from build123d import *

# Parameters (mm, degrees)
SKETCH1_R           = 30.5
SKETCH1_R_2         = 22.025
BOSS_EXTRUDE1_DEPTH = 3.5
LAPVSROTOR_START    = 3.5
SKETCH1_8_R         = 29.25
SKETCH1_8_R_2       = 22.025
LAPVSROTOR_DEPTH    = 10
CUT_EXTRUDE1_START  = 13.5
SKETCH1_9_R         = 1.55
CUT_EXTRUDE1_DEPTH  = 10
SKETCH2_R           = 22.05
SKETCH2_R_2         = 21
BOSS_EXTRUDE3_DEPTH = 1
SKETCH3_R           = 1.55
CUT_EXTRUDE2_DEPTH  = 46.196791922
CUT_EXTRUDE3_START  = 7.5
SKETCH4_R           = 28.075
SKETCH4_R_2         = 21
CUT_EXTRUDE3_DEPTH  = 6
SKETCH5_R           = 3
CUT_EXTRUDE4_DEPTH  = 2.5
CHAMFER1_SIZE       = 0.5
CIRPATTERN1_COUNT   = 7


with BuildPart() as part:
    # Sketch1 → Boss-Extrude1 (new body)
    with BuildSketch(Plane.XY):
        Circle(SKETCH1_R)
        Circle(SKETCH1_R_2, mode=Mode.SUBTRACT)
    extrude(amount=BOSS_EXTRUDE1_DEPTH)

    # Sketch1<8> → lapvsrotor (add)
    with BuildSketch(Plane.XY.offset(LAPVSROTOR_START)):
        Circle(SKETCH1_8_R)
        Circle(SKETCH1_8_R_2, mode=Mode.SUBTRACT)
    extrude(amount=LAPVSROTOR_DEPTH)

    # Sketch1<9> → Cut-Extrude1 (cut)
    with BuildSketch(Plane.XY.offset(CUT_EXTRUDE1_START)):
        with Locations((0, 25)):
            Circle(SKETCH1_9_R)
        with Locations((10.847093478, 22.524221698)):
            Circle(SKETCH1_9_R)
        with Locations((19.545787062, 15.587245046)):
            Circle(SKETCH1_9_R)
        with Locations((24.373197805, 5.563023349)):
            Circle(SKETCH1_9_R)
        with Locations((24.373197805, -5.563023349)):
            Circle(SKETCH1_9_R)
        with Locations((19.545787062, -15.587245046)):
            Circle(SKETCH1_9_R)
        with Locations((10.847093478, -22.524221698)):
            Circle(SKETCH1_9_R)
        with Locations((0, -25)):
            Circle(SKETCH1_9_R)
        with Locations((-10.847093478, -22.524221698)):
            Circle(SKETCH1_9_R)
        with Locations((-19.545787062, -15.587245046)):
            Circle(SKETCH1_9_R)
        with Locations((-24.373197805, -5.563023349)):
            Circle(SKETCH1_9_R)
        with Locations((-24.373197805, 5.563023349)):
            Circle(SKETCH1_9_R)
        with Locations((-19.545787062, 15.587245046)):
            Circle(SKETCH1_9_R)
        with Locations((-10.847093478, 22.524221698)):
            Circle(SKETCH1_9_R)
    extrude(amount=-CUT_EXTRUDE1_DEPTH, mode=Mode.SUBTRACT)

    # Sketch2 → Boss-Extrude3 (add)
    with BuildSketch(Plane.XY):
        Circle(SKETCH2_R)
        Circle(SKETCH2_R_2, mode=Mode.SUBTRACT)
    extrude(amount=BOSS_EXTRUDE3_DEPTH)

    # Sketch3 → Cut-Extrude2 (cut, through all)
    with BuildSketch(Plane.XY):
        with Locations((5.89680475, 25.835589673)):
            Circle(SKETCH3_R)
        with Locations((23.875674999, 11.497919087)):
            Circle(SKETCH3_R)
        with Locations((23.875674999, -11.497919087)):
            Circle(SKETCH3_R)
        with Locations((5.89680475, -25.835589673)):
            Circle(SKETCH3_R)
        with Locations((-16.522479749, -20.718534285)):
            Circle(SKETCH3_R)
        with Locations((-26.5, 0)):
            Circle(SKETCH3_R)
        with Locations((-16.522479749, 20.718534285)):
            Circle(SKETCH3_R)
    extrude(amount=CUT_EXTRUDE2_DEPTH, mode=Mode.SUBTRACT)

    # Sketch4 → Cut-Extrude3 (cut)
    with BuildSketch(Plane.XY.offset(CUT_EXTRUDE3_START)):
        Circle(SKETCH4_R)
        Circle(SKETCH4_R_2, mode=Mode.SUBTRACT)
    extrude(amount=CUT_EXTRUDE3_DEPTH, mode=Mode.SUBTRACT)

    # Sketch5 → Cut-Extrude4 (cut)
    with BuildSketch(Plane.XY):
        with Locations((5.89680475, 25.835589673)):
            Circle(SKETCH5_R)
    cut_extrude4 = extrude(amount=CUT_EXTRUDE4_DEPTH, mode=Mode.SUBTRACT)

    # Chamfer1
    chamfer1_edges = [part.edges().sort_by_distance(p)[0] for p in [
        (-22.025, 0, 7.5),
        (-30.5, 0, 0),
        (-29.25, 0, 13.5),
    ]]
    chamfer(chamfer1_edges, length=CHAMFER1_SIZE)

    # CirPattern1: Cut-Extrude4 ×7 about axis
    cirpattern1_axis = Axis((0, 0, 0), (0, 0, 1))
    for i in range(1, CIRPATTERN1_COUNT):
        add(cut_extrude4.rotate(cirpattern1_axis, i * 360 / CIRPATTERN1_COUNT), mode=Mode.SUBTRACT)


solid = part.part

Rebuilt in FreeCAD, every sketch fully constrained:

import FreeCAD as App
import Part
import Sketcher


def edges_at(feature, points):
    """Names of the edges that pass closest to the given points."""
    edges = feature.Shape.Edges
    near = lambda p: min(range(len(edges)), key=lambda i: edges[i].distToShape(Part.Vertex(*p))[0])
    return sorted({f"Edge{near(p) + 1}" for p in points})

doc = App.newDocument("Part")
body = doc.addObject("PartDesign::Body", "Body")

# Sketch on XY plane
sketch1 = doc.addObject("Sketcher::SketchObject", "Sketch")
body.addObject(sketch1)
sketch1.AttachmentSupport = (doc.XY_Plane, [""])
sketch1.MapMode = "FlatFace"
sketch1.addGeometry([
    Part.Circle(App.Vector(0, 0, 0), App.Vector(0, 0, 1), 30),
    Part.Circle(App.Vector(0, 0, 0), App.Vector(0, 0, 1), 22),
], False)
sketch1.addConstraint([
    Sketcher.Constraint("Coincident", 0, 3, -1, 1),
    Sketcher.Constraint("Coincident", 1, 3, -1, 1),
    Sketcher.Constraint("Diameter", 0, 61.0),
    Sketcher.Constraint("Diameter", 1, 44.05),
])
pad1 = doc.addObject("PartDesign::Pad", "Pad")
body.addObject(pad1)
pad1.Profile = sketch1
pad1.Length = 3.5

# Sketch on XY plane
sketch2 = doc.addObject("Sketcher::SketchObject", "Sketch001")
body.addObject(sketch2)
sketch2.AttachmentSupport = (doc.XY_Plane, [""])
sketch2.MapMode = "FlatFace"
sketch2.AttachmentOffset = App.Placement(App.Vector(0, 0, 3.5), App.Rotation())
sketch2.addGeometry([
    Part.Circle(App.Vector(0, 0, 0), App.Vector(0, 0, 1), 29),
    Part.Circle(App.Vector(0, 0, 0), App.Vector(0, 0, 1), 22),
], False)
sketch2.addConstraint([
    Sketcher.Constraint("Coincident", 0, 3, -1, 1),
    Sketcher.Constraint("Coincident", 1, 3, -1, 1),
    Sketcher.Constraint("Diameter", 0, 58.5),
    Sketcher.Constraint("Diameter", 1, 44.05),
])
pad2 = doc.addObject("PartDesign::Pad", "Pad001")
body.addObject(pad2)
pad2.Profile = sketch2
pad2.Length = 10

# Sketch on XY plane
sketch3 = doc.addObject("Sketcher::SketchObject", "Sketch002")
body.addObject(sketch3)
sketch3.AttachmentSupport = (doc.XY_Plane, [""])
sketch3.MapMode = "FlatFace"
sketch3.AttachmentOffset = App.Placement(App.Vector(0, 0, 13.5), App.Rotation())
sketch3.addGeometry([
    Part.Circle(App.Vector(0, 25, 0), App.Vector(0, 0, 1), 1.6),  # 0
    Part.Circle(App.Vector(10.8, 22.5, 0), App.Vector(0, 0, 1), 1.6),  # 1
    Part.Circle(App.Vector(19.5, 15.6, 0), App.Vector(0, 0, 1), 1.6),  # 2
    Part.Circle(App.Vector(24.4, 5.6, 0), App.Vector(0, 0, 1), 1.6),  # 3
    Part.Circle(App.Vector(24.4, -5.6, 0), App.Vector(0, 0, 1), 1.6),  # 4
    Part.Circle(App.Vector(19.5, -15.6, 0), App.Vector(0, 0, 1), 1.6),  # 5
    Part.Circle(App.Vector(10.8, -22.5, 0), App.Vector(0, 0, 1), 1.6),  # 6
    Part.Circle(App.Vector(0, -25, 0), App.Vector(0, 0, 1), 1.6),  # 7
    Part.Circle(App.Vector(-10.8, -22.5, 0), App.Vector(0, 0, 1), 1.6),  # 8
    Part.Circle(App.Vector(-19.5, -15.6, 0), App.Vector(0, 0, 1), 1.6),  # 9
    Part.Circle(App.Vector(-24.4, -5.6, 0), App.Vector(0, 0, 1), 1.6),  # 10
    Part.Circle(App.Vector(-24.4, 5.6, 0), App.Vector(0, 0, 1), 1.6),  # 11
    Part.Circle(App.Vector(-19.5, 15.6, 0), App.Vector(0, 0, 1), 1.6),  # 12
    Part.Circle(App.Vector(-10.8, 22.5, 0), App.Vector(0, 0, 1), 1.6),  # 13
], False)
sketch3.addConstraint([
    Sketcher.Constraint("Equal", 0, 1),
    Sketcher.Constraint("Equal", 1, 2),
    Sketcher.Constraint("Equal", 2, 3),
    Sketcher.Constraint("Equal", 3, 4),
    Sketcher.Constraint("Equal", 4, 5),
    Sketcher.Constraint("Equal", 5, 6),
    Sketcher.Constraint("Equal", 6, 7),
    Sketcher.Constraint("Equal", 7, 8),
    Sketcher.Constraint("Equal", 8, 9),
    Sketcher.Constraint("Equal", 9, 10),
    Sketcher.Constraint("Equal", 10, 11),
    Sketcher.Constraint("Equal", 11, 12),
    Sketcher.Constraint("Equal", 12, 13),
    Sketcher.Constraint("Symmetric", 0, 3, 7, 3, -1, 1),
    Sketcher.Constraint("Symmetric", 1, 3, 8, 3, -1, 1),
    Sketcher.Constraint("Symmetric", 2, 3, 9, 3, -1, 1),
    Sketcher.Constraint("Symmetric", 3, 3, 10, 3, -1, 1),
    Sketcher.Constraint("Symmetric", 4, 3, 11, 3, -1, 1),
    Sketcher.Constraint("Symmetric", 5, 3, 12, 3, -1, 1),
    Sketcher.Constraint("Symmetric", 6, 3, 13, 3, -1, 1),
    Sketcher.Constraint("Symmetric", 6, 3, 8, 3, -2),
    Sketcher.Constraint("Symmetric", 5, 3, 9, 3, -2),
    Sketcher.Constraint("Symmetric", 4, 3, 10, 3, -2),
    Sketcher.Constraint("PointOnObject", 0, 3, -2),
    Sketcher.Constraint("Diameter", 0, 3.1),
    Sketcher.Constraint("DistanceY", -1, 1, 0, 3, 25.0),
    Sketcher.Constraint("DistanceY", 3, 3, 1, 3, 16.961198),
    Sketcher.Constraint("DistanceY", -1, 1, 1, 3, 22.524222),
    Sketcher.Constraint("DistanceX", 2, 3, 3, 3, 4.827411),
    Sketcher.Constraint("DistanceY", 3, 3, 2, 3, 10.024222),
    Sketcher.Constraint("DistanceX", 8, 3, 5, 3, 30.392881),
    Sketcher.Constraint("DistanceX", -1, 1, 1, 3, 10.847093),
])
pocket1 = doc.addObject("PartDesign::Pocket", "Pocket")
body.addObject(pocket1)
pocket1.Profile = sketch3
pocket1.Length = 10

# Sketch on XY plane
sketch4 = doc.addObject("Sketcher::SketchObject", "Sketch003")
body.addObject(sketch4)
sketch4.AttachmentSupport = (doc.XY_Plane, [""])
sketch4.MapMode = "FlatFace"
sketch4.addGeometry([
    Part.Circle(App.Vector(0, 0, 0), App.Vector(0, 0, 1), 22),
    Part.Circle(App.Vector(0, 0, 0), App.Vector(0, 0, 1), 21),
], False)
sketch4.addConstraint([
    Sketcher.Constraint("Coincident", 0, 3, -1, 1),
    Sketcher.Constraint("Coincident", 1, 3, -1, 1),
    Sketcher.Constraint("Diameter", 1, 42.0),
    Sketcher.Constraint("Diameter", 0, 44.1),
])
pad3 = doc.addObject("PartDesign::Pad", "Pad002")
body.addObject(pad3)
pad3.Profile = sketch4
pad3.Length = 1

# Sketch on XY plane
sketch5 = doc.addObject("Sketcher::SketchObject", "Sketch004")
body.addObject(sketch5)
sketch5.AttachmentSupport = (doc.XY_Plane, [""])
sketch5.MapMode = "FlatFace"
sketch5.addGeometry([
    Part.Circle(App.Vector(5.9, 25.8, 0), App.Vector(0, 0, 1), 1.6),  # 0
    Part.Circle(App.Vector(23.9, 11.5, 0), App.Vector(0, 0, 1), 1.6),  # 1
    Part.Circle(App.Vector(23.9, -11.5, 0), App.Vector(0, 0, 1), 1.6),  # 2
    Part.Circle(App.Vector(5.9, -25.8, 0), App.Vector(0, 0, 1), 1.6),  # 3
    Part.Circle(App.Vector(-16.5, -20.7, 0), App.Vector(0, 0, 1), 1.6),  # 4
    Part.Circle(App.Vector(-26.5, 0, 0), App.Vector(0, 0, 1), 1.6),  # 5
    Part.Circle(App.Vector(-16.5, 20.7, 0), App.Vector(0, 0, 1), 1.6),  # 6
], False)
sketch5.addConstraint([
    Sketcher.Constraint("Equal", 0, 1),
    Sketcher.Constraint("Equal", 1, 2),
    Sketcher.Constraint("Equal", 2, 3),
    Sketcher.Constraint("Equal", 3, 4),
    Sketcher.Constraint("Equal", 4, 5),
    Sketcher.Constraint("Equal", 5, 6),
    Sketcher.Constraint("Symmetric", 1, 3, 2, 3, -1),
    Sketcher.Constraint("Symmetric", 0, 3, 3, 3, -1),
    Sketcher.Constraint("Symmetric", 4, 3, 6, 3, -1),
    Sketcher.Constraint("PointOnObject", 5, 3, -1),
    Sketcher.Constraint("Diameter", 0, 3.1),
    Sketcher.Constraint("DistanceX", 5, 3, -1, 1, 26.5),
    Sketcher.Constraint("DistanceY", -1, 1, 0, 3, 25.83559),
    Sketcher.Constraint("DistanceY", -1, 1, 1, 3, 11.497919),
    Sketcher.Constraint("DistanceX", 4, 3, -1, 1, 16.52248),
    Sketcher.Constraint("DistanceX", 0, 3, 1, 3, 17.97887),
    Sketcher.Constraint("DistanceY", 4, 3, 6, 3, 41.437069),
    Sketcher.Constraint("DistanceX", -1, 1, 0, 3, 5.896805),
])
pocket2 = doc.addObject("PartDesign::Pocket", "Pocket001")
body.addObject(pocket2)
pocket2.Profile = sketch5
pocket2.Type = "ThroughAll"
pocket2.Reversed = True

# Sketch on XY plane
sketch6 = doc.addObject("Sketcher::SketchObject", "Sketch005")
body.addObject(sketch6)
sketch6.AttachmentSupport = (doc.XY_Plane, [""])
sketch6.MapMode = "FlatFace"
sketch6.AttachmentOffset = App.Placement(App.Vector(0, 0, 7.5), App.Rotation())
sketch6.addGeometry([
    Part.Circle(App.Vector(0, 0, 0), App.Vector(0, 0, 1), 28),
    Part.Circle(App.Vector(0, 0, 0), App.Vector(0, 0, 1), 21),
], False)
sketch6.addConstraint([
    Sketcher.Constraint("Coincident", 0, 3, -1, 1),
    Sketcher.Constraint("Coincident", 1, 3, -1, 1),
    Sketcher.Constraint("Diameter", 1, 42.0),
    Sketcher.Constraint("Diameter", 0, 56.15),
])
pocket3 = doc.addObject("PartDesign::Pocket", "Pocket002")
body.addObject(pocket3)
pocket3.Profile = sketch6
pocket3.Length = 6
pocket3.Reversed = True

# Sketch on XY plane
sketch7 = doc.addObject("Sketcher::SketchObject", "Sketch006")
body.addObject(sketch7)
sketch7.AttachmentSupport = (doc.XY_Plane, [""])
sketch7.MapMode = "FlatFace"
sketch7.addGeometry(Part.Circle(App.Vector(5.9, 25.8, 0), App.Vector(0, 0, 1), 3), False)
sketch7.addConstraint([
    Sketcher.Constraint("Diameter", 0, 6.0),
    Sketcher.Constraint("DistanceY", -1, 1, 0, 3, 25.83559),
    Sketcher.Constraint("DistanceX", -1, 1, 0, 3, 5.896805),
])
pocket4 = doc.addObject("PartDesign::Pocket", "Pocket003")
body.addObject(pocket4)
pocket4.Profile = sketch7
pocket4.Length = 2.5
pocket4.Reversed = True
doc.recompute()

chamfer = doc.addObject("PartDesign::Chamfer", "Chamfer")
body.addObject(chamfer)
chamfer.Base = (pocket4, edges_at(pocket4, [(-22.025, 0, 7.5), (-30.5, 0, 0), (-29.25, 0, 13.5)]))
chamfer.Size = 0.5
doc.recompute()

polarpattern = doc.addObject("PartDesign::PolarPattern", "PolarPattern")
body.addObject(polarpattern)
polarpattern.Originals = [pocket4]
polarpattern.Axis = (doc.Z_Axis, [""])
polarpattern.Angle = 360
polarpattern.Occurrences = 7
body.Tip = polarpattern

doc.recompute()
